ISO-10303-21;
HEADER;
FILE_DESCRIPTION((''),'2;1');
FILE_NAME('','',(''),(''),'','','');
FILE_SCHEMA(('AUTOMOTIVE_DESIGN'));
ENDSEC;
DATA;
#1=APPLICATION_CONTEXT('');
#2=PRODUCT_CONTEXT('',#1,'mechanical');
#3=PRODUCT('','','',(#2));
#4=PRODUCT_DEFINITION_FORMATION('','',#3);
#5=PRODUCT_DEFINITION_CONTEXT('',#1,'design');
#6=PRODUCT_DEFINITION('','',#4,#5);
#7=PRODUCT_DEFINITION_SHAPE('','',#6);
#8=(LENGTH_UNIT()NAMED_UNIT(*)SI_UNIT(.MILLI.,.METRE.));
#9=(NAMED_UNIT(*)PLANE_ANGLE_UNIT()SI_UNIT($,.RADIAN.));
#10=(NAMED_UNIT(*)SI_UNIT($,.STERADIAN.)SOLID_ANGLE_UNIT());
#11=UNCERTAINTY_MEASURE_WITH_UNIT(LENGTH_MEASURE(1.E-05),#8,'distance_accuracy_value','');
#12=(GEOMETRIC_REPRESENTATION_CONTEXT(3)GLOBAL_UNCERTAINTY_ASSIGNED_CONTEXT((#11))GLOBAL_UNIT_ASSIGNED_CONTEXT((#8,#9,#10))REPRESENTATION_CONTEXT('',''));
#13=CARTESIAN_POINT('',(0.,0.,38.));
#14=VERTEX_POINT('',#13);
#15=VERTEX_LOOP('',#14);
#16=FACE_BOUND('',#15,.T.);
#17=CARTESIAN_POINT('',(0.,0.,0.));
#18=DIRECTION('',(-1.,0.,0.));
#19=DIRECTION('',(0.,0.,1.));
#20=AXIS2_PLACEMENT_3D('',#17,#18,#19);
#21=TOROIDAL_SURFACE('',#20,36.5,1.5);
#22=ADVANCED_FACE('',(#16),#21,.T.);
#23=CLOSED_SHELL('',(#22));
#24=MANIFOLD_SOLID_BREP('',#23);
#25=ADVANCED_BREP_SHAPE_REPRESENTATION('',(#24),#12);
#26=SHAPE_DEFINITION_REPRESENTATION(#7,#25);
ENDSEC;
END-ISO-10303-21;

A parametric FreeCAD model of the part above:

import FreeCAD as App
import Part
import Sketcher

V = App.Vector
Q = App.Units.Quantity

doc = App.newDocument("Part")
body = doc.addObject("PartDesign::Body", "Body")

sketch1 = doc.addObject("Sketcher::SketchObject", "Sketch")
body.addObject(sketch1)
sketch1.AttachmentSupport = (doc.XY_Plane, [""])
sketch1.MapMode = "FlatFace"
sketch1.addGeometry(Part.Circle(V(0, 36.5, 0), V(0, 0, 1), 1.5), False)
sketch1.addConstraint(Sketcher.Constraint("PointOnObject", 0, 3, -2))
sketch1.addConstraint(Sketcher.Constraint("Diameter", 0, Q("3 mm")))
sketch1.addConstraint(Sketcher.Constraint("DistanceY", -1, 1, 0, 3, Q("36.5 mm")))
revolution = doc.addObject("PartDesign::Revolution", "Revolution")
body.addObject(revolution)
revolution.Profile = sketch1
revolution.ReferenceAxis = (sketch1, ["H_Axis"])
revolution.Angle = 360

doc.recompute()
